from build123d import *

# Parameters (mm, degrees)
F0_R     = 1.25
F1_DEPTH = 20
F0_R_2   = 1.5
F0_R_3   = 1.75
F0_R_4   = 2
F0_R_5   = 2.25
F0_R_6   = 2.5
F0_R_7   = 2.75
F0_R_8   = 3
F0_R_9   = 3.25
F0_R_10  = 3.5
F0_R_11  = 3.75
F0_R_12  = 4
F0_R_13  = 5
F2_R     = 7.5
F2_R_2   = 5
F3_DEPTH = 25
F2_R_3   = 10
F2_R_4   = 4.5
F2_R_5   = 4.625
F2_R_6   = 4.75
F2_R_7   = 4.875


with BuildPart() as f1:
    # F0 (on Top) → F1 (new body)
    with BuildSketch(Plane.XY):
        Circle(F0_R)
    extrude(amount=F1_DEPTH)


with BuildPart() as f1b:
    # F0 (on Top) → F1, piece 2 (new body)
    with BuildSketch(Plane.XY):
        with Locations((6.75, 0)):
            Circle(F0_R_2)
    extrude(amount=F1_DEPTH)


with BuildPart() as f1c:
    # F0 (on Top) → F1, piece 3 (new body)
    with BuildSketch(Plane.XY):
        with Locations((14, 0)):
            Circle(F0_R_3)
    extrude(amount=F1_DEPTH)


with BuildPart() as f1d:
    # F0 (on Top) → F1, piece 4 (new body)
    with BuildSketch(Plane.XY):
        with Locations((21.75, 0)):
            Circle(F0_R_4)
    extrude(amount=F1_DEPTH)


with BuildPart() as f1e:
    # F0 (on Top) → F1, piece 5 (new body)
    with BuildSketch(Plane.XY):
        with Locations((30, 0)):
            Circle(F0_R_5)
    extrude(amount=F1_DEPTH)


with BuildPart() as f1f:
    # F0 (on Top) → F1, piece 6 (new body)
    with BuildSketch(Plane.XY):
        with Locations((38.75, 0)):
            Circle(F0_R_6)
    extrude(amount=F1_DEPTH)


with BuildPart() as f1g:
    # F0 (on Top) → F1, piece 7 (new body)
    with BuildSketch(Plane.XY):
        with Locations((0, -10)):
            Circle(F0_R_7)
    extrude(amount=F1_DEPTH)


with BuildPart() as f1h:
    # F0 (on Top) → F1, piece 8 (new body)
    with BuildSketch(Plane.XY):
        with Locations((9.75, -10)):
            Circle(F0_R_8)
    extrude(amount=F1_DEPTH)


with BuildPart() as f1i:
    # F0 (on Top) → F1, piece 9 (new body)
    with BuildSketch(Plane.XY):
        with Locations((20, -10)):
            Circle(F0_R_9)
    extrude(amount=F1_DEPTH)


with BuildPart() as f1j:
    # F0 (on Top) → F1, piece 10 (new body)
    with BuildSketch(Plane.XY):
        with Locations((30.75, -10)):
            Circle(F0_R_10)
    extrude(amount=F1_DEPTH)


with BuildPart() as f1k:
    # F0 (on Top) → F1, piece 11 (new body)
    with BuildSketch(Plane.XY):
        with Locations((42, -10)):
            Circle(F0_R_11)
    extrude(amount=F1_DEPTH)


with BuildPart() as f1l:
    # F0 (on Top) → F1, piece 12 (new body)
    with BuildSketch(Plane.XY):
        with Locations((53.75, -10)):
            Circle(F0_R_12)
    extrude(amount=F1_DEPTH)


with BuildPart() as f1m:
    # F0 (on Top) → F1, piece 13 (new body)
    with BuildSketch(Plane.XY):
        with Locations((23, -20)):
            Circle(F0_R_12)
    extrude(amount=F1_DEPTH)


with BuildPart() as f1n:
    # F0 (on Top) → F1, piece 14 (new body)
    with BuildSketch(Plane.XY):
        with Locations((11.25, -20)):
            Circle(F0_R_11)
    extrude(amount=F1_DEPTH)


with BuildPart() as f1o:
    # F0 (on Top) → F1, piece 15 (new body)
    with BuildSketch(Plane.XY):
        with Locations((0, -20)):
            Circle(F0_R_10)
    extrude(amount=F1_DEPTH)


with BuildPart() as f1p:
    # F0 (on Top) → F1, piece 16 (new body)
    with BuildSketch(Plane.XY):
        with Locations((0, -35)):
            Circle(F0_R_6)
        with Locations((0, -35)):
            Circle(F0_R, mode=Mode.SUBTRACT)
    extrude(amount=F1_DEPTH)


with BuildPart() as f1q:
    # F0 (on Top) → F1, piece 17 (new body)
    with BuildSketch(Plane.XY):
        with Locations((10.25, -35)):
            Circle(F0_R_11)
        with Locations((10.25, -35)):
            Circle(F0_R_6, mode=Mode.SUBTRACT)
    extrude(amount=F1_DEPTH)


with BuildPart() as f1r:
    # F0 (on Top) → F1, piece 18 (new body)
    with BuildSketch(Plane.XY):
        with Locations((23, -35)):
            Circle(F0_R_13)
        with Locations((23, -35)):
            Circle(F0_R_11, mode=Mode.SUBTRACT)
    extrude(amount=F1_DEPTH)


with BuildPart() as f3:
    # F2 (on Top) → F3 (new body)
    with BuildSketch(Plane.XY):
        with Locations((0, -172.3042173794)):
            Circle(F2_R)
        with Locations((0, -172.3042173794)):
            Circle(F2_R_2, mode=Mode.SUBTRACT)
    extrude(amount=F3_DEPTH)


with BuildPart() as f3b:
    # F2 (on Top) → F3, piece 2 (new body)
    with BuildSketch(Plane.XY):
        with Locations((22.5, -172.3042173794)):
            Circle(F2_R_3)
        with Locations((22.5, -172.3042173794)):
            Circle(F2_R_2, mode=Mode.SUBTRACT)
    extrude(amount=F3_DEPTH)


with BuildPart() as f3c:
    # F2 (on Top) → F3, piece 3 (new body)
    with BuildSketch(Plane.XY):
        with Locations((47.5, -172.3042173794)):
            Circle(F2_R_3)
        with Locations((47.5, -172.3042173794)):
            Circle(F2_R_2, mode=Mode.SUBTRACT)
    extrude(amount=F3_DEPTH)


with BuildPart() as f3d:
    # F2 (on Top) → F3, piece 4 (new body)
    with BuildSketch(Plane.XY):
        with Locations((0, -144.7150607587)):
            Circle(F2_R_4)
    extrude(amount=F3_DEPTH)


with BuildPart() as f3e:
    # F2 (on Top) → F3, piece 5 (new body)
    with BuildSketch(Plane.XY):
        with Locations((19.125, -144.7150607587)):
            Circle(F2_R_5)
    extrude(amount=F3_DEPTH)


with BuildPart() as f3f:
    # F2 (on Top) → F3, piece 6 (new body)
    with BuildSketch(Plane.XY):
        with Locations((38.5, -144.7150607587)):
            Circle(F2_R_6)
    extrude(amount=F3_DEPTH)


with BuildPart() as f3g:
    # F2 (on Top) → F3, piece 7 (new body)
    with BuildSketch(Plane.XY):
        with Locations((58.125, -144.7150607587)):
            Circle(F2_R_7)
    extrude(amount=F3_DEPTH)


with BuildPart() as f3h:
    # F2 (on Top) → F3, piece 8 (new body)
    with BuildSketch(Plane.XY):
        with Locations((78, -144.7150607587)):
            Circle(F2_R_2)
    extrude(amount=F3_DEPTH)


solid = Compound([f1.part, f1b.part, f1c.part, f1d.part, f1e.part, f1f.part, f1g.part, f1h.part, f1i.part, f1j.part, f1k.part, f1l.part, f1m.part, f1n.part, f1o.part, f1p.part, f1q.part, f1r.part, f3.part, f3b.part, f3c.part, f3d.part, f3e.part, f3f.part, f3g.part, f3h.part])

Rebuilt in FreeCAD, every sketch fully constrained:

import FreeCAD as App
import Part
import Sketcher
Q = App.Units.Quantity

doc = App.newDocument("Part")
body = doc.addObject("PartDesign::Body", "Body")

sketch1 = doc.addObject("Sketcher::SketchObject", "Sketch")
body.addObject(sketch1)
sketch1.AttachmentSupport = (doc.XY_Plane, [""])
sketch1.MapMode = "FlatFace"
sketch1.addGeometry(Part.Circle(App.Vector(0, 0, 0), App.Vector(0, 0, 1), 1.2), False)
sketch1.addConstraint([
    Sketcher.Constraint("Coincident", 0, 3, -1, 1),
    Sketcher.Constraint("Diameter", 0, Q("2.5 mm")),
])
pad1 = doc.addObject("PartDesign::Pad", "Pad")
body.addObject(pad1)
pad1.Profile = sketch1
pad1.Length = 20
body2 = doc.addObject("PartDesign::Body", "Body001")

sketch2 = doc.addObject("Sketcher::SketchObject", "Sketch001")
body2.addObject(sketch2)
sketch2.AttachmentSupport = (doc.getObject("XY_Plane001"), [""])
sketch2.MapMode = "FlatFace"
sketch2.addGeometry(Part.Circle(App.Vector(6.8, 0, 0), App.Vector(0, 0, 1), 1.5), False)
sketch2.addConstraint([
    Sketcher.Constraint("PointOnObject", 0, 3, -1),
    Sketcher.Constraint("Diameter", 0, Q("3 mm")),
    Sketcher.Constraint("DistanceX", -1, 1, 0, 3, Q("6.75 mm")),
])
pad2 = doc.addObject("PartDesign::Pad", "Pad001")
body2.addObject(pad2)
pad2.Profile = sketch2
pad2.Length = 20
body3 = doc.addObject("PartDesign::Body", "Body002")

sketch3 = doc.addObject("Sketcher::SketchObject", "Sketch002")
body3.addObject(sketch3)
sketch3.AttachmentSupport = (doc.getObject("XY_Plane002"), [""])
sketch3.MapMode = "FlatFace"
sketch3.addGeometry(Part.Circle(App.Vector(14, 0, 0), App.Vector(0, 0, 1), 1.8), False)
sketch3.addConstraint([
    Sketcher.Constraint("PointOnObject", 0, 3, -1),
    Sketcher.Constraint("Diameter", 0, Q("3.5 mm")),
    Sketcher.Constraint("DistanceX", -1, 1, 0, 3, Q("14 mm")),
])
pad3 = doc.addObject("PartDesign::Pad", "Pad002")
body3.addObject(pad3)
pad3.Profile = sketch3
pad3.Length = 20
body4 = doc.addObject("PartDesign::Body", "Body003")

sketch4 = doc.addObject("Sketcher::SketchObject", "Sketch003")
body4.addObject(sketch4)
sketch4.AttachmentSupport = (doc.getObject("XY_Plane003"), [""])
sketch4.MapMode = "FlatFace"
sketch4.addGeometry(Part.Circle(App.Vector(21.8, 0, 0), App.Vector(0, 0, 1), 2), False)
sketch4.addConstraint([
    Sketcher.Constraint("PointOnObject", 0, 3, -1),
    Sketcher.Constraint("Diameter", 0, Q("4 mm")),
    Sketcher.Constraint("DistanceX", -1, 1, 0, 3, Q("21.75 mm")),
])
pad4 = doc.addObject("PartDesign::Pad", "Pad003")
body4.addObject(pad4)
pad4.Profile = sketch4
pad4.Length = 20
body5 = doc.addObject("PartDesign::Body", "Body004")

sketch5 = doc.addObject("Sketcher::SketchObject", "Sketch004")
body5.addObject(sketch5)
sketch5.AttachmentSupport = (doc.getObject("XY_Plane004"), [""])
sketch5.MapMode = "FlatFace"
sketch5.addGeometry(Part.Circle(App.Vector(30, 0, 0), App.Vector(0, 0, 1), 2.2), False)
sketch5.addConstraint([
    Sketcher.Constraint("PointOnObject", 0, 3, -1),
    Sketcher.Constraint("Diameter", 0, Q("4.5 mm")),
    Sketcher.Constraint("DistanceX", -1, 1, 0, 3, Q("30 mm")),
])
pad5 = doc.addObject("PartDesign::Pad", "Pad004")
body5.addObject(pad5)
pad5.Profile = sketch5
pad5.Length = 20
body6 = doc.addObject("PartDesign::Body", "Body005")

sketch6 = doc.addObject("Sketcher::SketchObject", "Sketch005")
body6.addObject(sketch6)
sketch6.AttachmentSupport = (doc.getObject("XY_Plane005"), [""])
sketch6.MapMode = "FlatFace"
sketch6.addGeometry(Part.Circle(App.Vector(38.8, 0, 0), App.Vector(0, 0, 1), 2.5), False)
sketch6.addConstraint([
    Sketcher.Constraint("PointOnObject", 0, 3, -1),
    Sketcher.Constraint("Diameter", 0, Q("5 mm")),
    Sketcher.Constraint("DistanceX", -1, 1, 0, 3, Q("38.75 mm")),
])
pad6 = doc.addObject("PartDesign::Pad", "Pad005")
body6.addObject(pad6)
pad6.Profile = sketch6
pad6.Length = 20
body7 = doc.addObject("PartDesign::Body", "Body006")

sketch7 = doc.addObject("Sketcher::SketchObject", "Sketch006")
body7.addObject(sketch7)
sketch7.AttachmentSupport = (doc.getObject("XY_Plane006"), [""])
sketch7.MapMode = "FlatFace"
sketch7.addGeometry(Part.Circle(App.Vector(0, -10, 0), App.Vector(0, 0, 1), 2.8), False)
sketch7.addConstraint([
    Sketcher.Constraint("PointOnObject", 0, 3, -2),
    Sketcher.Constraint("Diameter", 0, Q("5.5 mm")),
    Sketcher.Constraint("DistanceY", 0, 3, -1, 1, Q("10 mm")),
])
pad7 = doc.addObject("PartDesign::Pad", "Pad006")
body7.addObject(pad7)
pad7.Profile = sketch7
pad7.Length = 20
body8 = doc.addObject("PartDesign::Body", "Body007")

sketch8 = doc.addObject("Sketcher::SketchObject", "Sketch007")
body8.addObject(sketch8)
sketch8.AttachmentSupport = (doc.getObject("XY_Plane007"), [""])
sketch8.MapMode = "FlatFace"
sketch8.addGeometry(Part.Circle(App.Vector(9.8, -10, 0), App.Vector(0, 0, 1), 3), False)
sketch8.addConstraint([
    Sketcher.Constraint("Diameter", 0, Q("6 mm")),
    Sketcher.Constraint("DistanceY", 0, 3, -1, 1, Q("10 mm")),
    Sketcher.Constraint("DistanceX", -1, 1, 0, 3, Q("9.75 mm")),
])
pad8 = doc.addObject("PartDesign::Pad", "Pad007")
body8.addObject(pad8)
pad8.Profile = sketch8
pad8.Length = 20
body9 = doc.addObject("PartDesign::Body", "Body008")

sketch9 = doc.addObject("Sketcher::SketchObject", "Sketch008")
body9.addObject(sketch9)
sketch9.AttachmentSupport = (doc.getObject("XY_Plane008"), [""])
sketch9.MapMode = "FlatFace"
sketch9.addGeometry(Part.Circle(App.Vector(20, -10, 0), App.Vector(0, 0, 1), 3.2), False)
sketch9.addConstraint([
    Sketcher.Constraint("Diameter", 0, Q("6.5 mm")),
    Sketcher.Constraint("DistanceX", -1, 1, 0, 3, Q("20 mm")),
    Sketcher.Constraint("DistanceY", 0, 3, -1, 1, Q("10 mm")),
])
pad9 = doc.addObject("PartDesign::Pad", "Pad008")
body9.addObject(pad9)
pad9.Profile = sketch9
pad9.Length = 20
body10 = doc.addObject("PartDesign::Body", "Body009")

sketch10 = doc.addObject("Sketcher::SketchObject", "Sketch009")
body10.addObject(sketch10)
sketch10.AttachmentSupport = (doc.getObject("XY_Plane009"), [""])
sketch10.MapMode = "FlatFace"
sketch10.addGeometry(Part.Circle(App.Vector(30.8, -10, 0), App.Vector(0, 0, 1), 3.5), False)
sketch10.addConstraint([
    Sketcher.Constraint("Diameter", 0, Q("7 mm")),
    Sketcher.Constraint("DistanceY", 0, 3, -1, 1, Q("10 mm")),
    Sketcher.Constraint("DistanceX", -1, 1, 0, 3, Q("30.75 mm")),
])
pad10 = doc.addObject("PartDesign::Pad", "Pad009")
body10.addObject(pad10)
pad10.Profile = sketch10
pad10.Length = 20
body11 = doc.addObject("PartDesign::Body", "Body010")

sketch11 = doc.addObject("Sketcher::SketchObject", "Sketch010")
body11.addObject(sketch11)
sketch11.AttachmentSupport = (doc.getObject("XY_Plane010"), [""])
sketch11.MapMode = "FlatFace"
sketch11.addGeometry(Part.Circle(App.Vector(42, -10, 0), App.Vector(0, 0, 1), 3.8), False)
sketch11.addConstraint([
    Sketcher.Constraint("Diameter", 0, Q("7.5 mm")),
    Sketcher.Constraint("DistanceX", -1, 1, 0, 3, Q("42 mm")),
    Sketcher.Constraint("DistanceY", 0, 3, -1, 1, Q("10 mm")),
])
pad11 = doc.addObject("PartDesign::Pad", "Pad010")
body11.addObject(pad11)
pad11.Profile = sketch11
pad11.Length = 20
body12 = doc.addObject("PartDesign::Body", "Body011")

sketch12 = doc.addObject("Sketcher::SketchObject", "Sketch011")
body12.addObject(sketch12)
sketch12.AttachmentSupport = (doc.getObject("XY_Plane011"), [""])
sketch12.MapMode = "FlatFace"
sketch12.addGeometry(Part.Circle(App.Vector(53.8, -10, 0), App.Vector(0, 0, 1), 4), False)
sketch12.addConstraint([
    Sketcher.Constraint("Diameter", 0, Q("8 mm")),
    Sketcher.Constraint("DistanceY", 0, 3, -1, 1, Q("10 mm")),
    Sketcher.Constraint("DistanceX", -1, 1, 0, 3, Q("53.75 mm")),
])
pad12 = doc.addObject("PartDesign::Pad", "Pad011")
body12.addObject(pad12)
pad12.Profile = sketch12
pad12.Length = 20
body13 = doc.addObject("PartDesign::Body", "Body012")

sketch13 = doc.addObject("Sketcher::SketchObject", "Sketch012")
body13.addObject(sketch13)
sketch13.AttachmentSupport = (doc.getObject("XY_Plane012"), [""])
sketch13.MapMode = "FlatFace"
sketch13.addGeometry(Part.Circle(App.Vector(23, -20, 0), App.Vector(0, 0, 1), 4), False)
sketch13.addConstraint([
    Sketcher.Constraint("Diameter", 0, Q("8 mm")),
    Sketcher.Constraint("DistanceX", -1, 1, 0, 3, Q("23 mm")),
    Sketcher.Constraint("DistanceY", 0, 3, -1, 1, Q("20 mm")),
])
pad13 = doc.addObject("PartDesign::Pad", "Pad012")
body13.addObject(pad13)
pad13.Profile = sketch13
pad13.Length = 20
body14 = doc.addObject("PartDesign::Body", "Body013")

sketch14 = doc.addObject("Sketcher::SketchObject", "Sketch013")
body14.addObject(sketch14)
sketch14.AttachmentSupport = (doc.getObject("XY_Plane013"), [""])
sketch14.MapMode = "FlatFace"
sketch14.addGeometry(Part.Circle(App.Vector(11.2, -20, 0), App.Vector(0, 0, 1), 3.8), False)
sketch14.addConstraint([
    Sketcher.Constraint("Diameter", 0, Q("7.5 mm")),
    Sketcher.Constraint("DistanceY", 0, 3, -1, 1, Q("20 mm")),
    Sketcher.Constraint("DistanceX", -1, 1, 0, 3, Q("11.25 mm")),
])
pad14 = doc.addObject("PartDesign::Pad", "Pad013")
body14.addObject(pad14)
pad14.Profile = sketch14
pad14.Length = 20
body15 = doc.addObject("PartDesign::Body", "Body014")

sketch15 = doc.addObject("Sketcher::SketchObject", "Sketch014")
body15.addObject(sketch15)
sketch15.AttachmentSupport = (doc.getObject("XY_Plane014"), [""])
sketch15.MapMode = "FlatFace"
sketch15.addGeometry(Part.Circle(App.Vector(0, -20, 0), App.Vector(0, 0, 1), 3.5), False)
sketch15.addConstraint([
    Sketcher.Constraint("PointOnObject", 0, 3, -2),
    Sketcher.Constraint("Diameter", 0, Q("7 mm")),
    Sketcher.Constraint("DistanceY", 0, 3, -1, 1, Q("20 mm")),
])
pad15 = doc.addObject("PartDesign::Pad", "Pad014")
body15.addObject(pad15)
pad15.Profile = sketch15
pad15.Length = 20
body16 = doc.addObject("PartDesign::Body", "Body015")

sketch16 = doc.addObject("Sketcher::SketchObject", "Sketch015")
body16.addObject(sketch16)
sketch16.AttachmentSupport = (doc.getObject("XY_Plane015"), [""])
sketch16.MapMode = "FlatFace"
sketch16.addGeometry([
    Part.Circle(App.Vector(0, -35, 0), App.Vector(0, 0, 1), 2.5),
    Part.Circle(App.Vector(0, -35, 0), App.Vector(0, 0, 1), 1.2),
], False)
sketch16.addConstraint([
    Sketcher.Constraint("Coincident", 1, 3, 0, 3),
    Sketcher.Constraint("PointOnObject", 0, 3, -2),
    Sketcher.Constraint("Diameter", 0, Q("5 mm")),
    Sketcher.Constraint("Diameter", 1, Q("2.5 mm")),
    Sketcher.Constraint("DistanceY", 0, 3, -1, 1, Q("35 mm")),
])
pad16 = doc.addObject("PartDesign::Pad", "Pad015")
body16.addObject(pad16)
pad16.Profile = sketch16
pad16.Length = 20
body17 = doc.addObject("PartDesign::Body", "Body016")

sketch17 = doc.addObject("Sketcher::SketchObject", "Sketch016")
body17.addObject(sketch17)
sketch17.AttachmentSupport = (doc.getObject("XY_Plane016"), [""])
sketch17.MapMode = "FlatFace"
sketch17.addGeometry([
    Part.Circle(App.Vector(10.2, -35, 0), App.Vector(0, 0, 1), 3.8),
    Part.Circle(App.Vector(10.2, -35, 0), App.Vector(0, 0, 1), 2.5),
], False)
sketch17.addConstraint([
    Sketcher.Constraint("Coincident", 1, 3, 0, 3),
    Sketcher.Constraint("Diameter", 1, Q("5 mm")),
    Sketcher.Constraint("Diameter", 0, Q("7.5 mm")),
    Sketcher.Constraint("DistanceY", 0, 3, -1, 1, Q("35 mm")),
    Sketcher.Constraint("DistanceX", -1, 1, 0, 3, Q("10.25 mm")),
])
pad17 = doc.addObject("PartDesign::Pad", "Pad016")
body17.addObject(pad17)
pad17.Profile = sketch17
pad17.Length = 20
body18 = doc.addObject("PartDesign::Body", "Body017")

sketch18 = doc.addObject("Sketcher::SketchObject", "Sketch017")
body18.addObject(sketch18)
sketch18.AttachmentSupport = (doc.getObject("XY_Plane017"), [""])
sketch18.MapMode = "FlatFace"
sketch18.addGeometry([
    Part.Circle(App.Vector(23, -35, 0), App.Vector(0, 0, 1), 5),
    Part.Circle(App.Vector(23, -35, 0), App.Vector(0, 0, 1), 3.8),
], False)
sketch18.addConstraint([
    Sketcher.Constraint("Coincident", 1, 3, 0, 3),
    Sketcher.Constraint("Diameter", 0, Q("10 mm")),
    Sketcher.Constraint("Diameter", 1, Q("7.5 mm")),
    Sketcher.Constraint("DistanceX", -1, 1, 0, 3, Q("23 mm")),
    Sketcher.Constraint("DistanceY", 0, 3, -1, 1, Q("35 mm")),
])
pad18 = doc.addObject("PartDesign::Pad", "Pad017")
body18.addObject(pad18)
pad18.Profile = sketch18
pad18.Length = 20
body19 = doc.addObject("PartDesign::Body", "Body018")

sketch19 = doc.addObject("Sketcher::SketchObject", "Sketch018")
body19.addObject(sketch19)
sketch19.AttachmentSupport = (doc.getObject("XY_Plane018"), [""])
sketch19.MapMode = "FlatFace"
sketch19.addGeometry([
    Part.Circle(App.Vector(0, -172, 0), App.Vector(0, 0, 1), 8),
    Part.Circle(App.Vector(0, -172, 0), App.Vector(0, 0, 1), 5),
], False)
sketch19.addConstraint([
    Sketcher.Constraint("Coincident", 1, 3, 0, 3),
    Sketcher.Constraint("PointOnObject", 0, 3, -2),
    Sketcher.Constraint("Diameter", 0, Q("15 mm")),
    Sketcher.Constraint("Diameter", 1, Q("10 mm")),
    Sketcher.Constraint("DistanceY", 0, 3, -1, 1, Q("172.304217 mm")),
])
pad19 = doc.addObject("PartDesign::Pad", "Pad018")
body19.addObject(pad19)
pad19.Profile = sketch19
pad19.Length = 25
body20 = doc.addObject("PartDesign::Body", "Body019")

sketch20 = doc.addObject("Sketcher::SketchObject", "Sketch019")
body20.addObject(sketch20)
sketch20.AttachmentSupport = (doc.getObject("XY_Plane019"), [""])
sketch20.MapMode = "FlatFace"
sketch20.addGeometry([
    Part.Circle(App.Vector(22, -172, 0), App.Vector(0, 0, 1), 10),
    Part.Circle(App.Vector(22, -172, 0), App.Vector(0, 0, 1), 5),
], False)
sketch20.addConstraint([
    Sketcher.Constraint("Coincident", 1, 3, 0, 3),
    Sketcher.Constraint("Diameter", 0, Q("20 mm")),
    Sketcher.Constraint("Diameter", 1, Q("10 mm")),
    Sketcher.Constraint("DistanceX", -1, 1, 0, 3, Q("22.5 mm")),
    Sketcher.Constraint("DistanceY", 0, 3, -1, 1, Q("172.304217 mm")),
])
pad20 = doc.addObject("PartDesign::Pad", "Pad019")
body20.addObject(pad20)
pad20.Profile = sketch20
pad20.Length = 25
body21 = doc.addObject("PartDesign::Body", "Body020")

sketch21 = doc.addObject("Sketcher::SketchObject", "Sketch020")
body21.addObject(sketch21)
sketch21.AttachmentSupport = (doc.getObject("XY_Plane020"), [""])
sketch21.MapMode = "FlatFace"
sketch21.addGeometry([
    Part.Circle(App.Vector(48, -172, 0), App.Vector(0, 0, 1), 10),
    Part.Circle(App.Vector(48, -172, 0), App.Vector(0, 0, 1), 5),
], False)
sketch21.addConstraint([
    Sketcher.Constraint("Coincident", 1, 3, 0, 3),
    Sketcher.Constraint("Diameter", 0, Q("20 mm")),
    Sketcher.Constraint("Diameter", 1, Q("10 mm")),
    Sketcher.Constraint("DistanceX", -1, 1, 0, 3, Q("47.5 mm")),
    Sketcher.Constraint("DistanceY", 0, 3, -1, 1, Q("172.304217 mm")),
])
pad21 = doc.addObject("PartDesign::Pad", "Pad020")
body21.addObject(pad21)
pad21.Profile = sketch21
pad21.Length = 25
body22 = doc.addObject("PartDesign::Body", "Body021")

sketch22 = doc.addObject("Sketcher::SketchObject", "Sketch021")
body22.addObject(sketch22)
sketch22.AttachmentSupport = (doc.getObject("XY_Plane021"), [""])
sketch22.MapMode = "FlatFace"
sketch22.addGeometry(Part.Circle(App.Vector(0, -144.7, 0), App.Vector(0, 0, 1), 4.5), False)
sketch22.addConstraint([
    Sketcher.Constraint("PointOnObject", 0, 3, -2),
    Sketcher.Constraint("Diameter", 0, Q("9 mm")),
    Sketcher.Constraint("DistanceY", 0, 3, -1, 1, Q("144.715061 mm")),
])
pad22 = doc.addObject("PartDesign::Pad", "Pad021")
body22.addObject(pad22)
pad22.Profile = sketch22
pad22.Length = 25
body23 = doc.addObject("PartDesign::Body", "Body022")

sketch23 = doc.addObject("Sketcher::SketchObject", "Sketch022")
body23.addObject(sketch23)
sketch23.AttachmentSupport = (doc.getObject("XY_Plane022"), [""])
sketch23.MapMode = "FlatFace"
sketch23.addGeometry(Part.Circle(App.Vector(19.1, -144.7, 0), App.Vector(0, 0, 1), 4.6), False)
sketch23.addConstraint([
    Sketcher.Constraint("Diameter", 0, Q("9.25 mm")),
    Sketcher.Constraint("DistanceX", -1, 1, 0, 3, Q("19.125 mm")),
    Sketcher.Constraint("DistanceY", 0, 3, -1, 1, Q("144.715061 mm")),
])
pad23 = doc.addObject("PartDesign::Pad", "Pad022")
body23.addObject(pad23)
pad23.Profile = sketch23
pad23.Length = 25
body24 = doc.addObject("PartDesign::Body", "Body023")

sketch24 = doc.addObject("Sketcher::SketchObject", "Sketch023")
body24.addObject(sketch24)
sketch24.AttachmentSupport = (doc.getObject("XY_Plane023"), [""])
sketch24.MapMode = "FlatFace"
sketch24.addGeometry(Part.Circle(App.Vector(38.5, -144.7, 0), App.Vector(0, 0, 1), 4.8), False)
sketch24.addConstraint([
    Sketcher.Constraint("Diameter", 0, Q("9.5 mm")),
    Sketcher.Constraint("DistanceX", -1, 1, 0, 3, Q("38.5 mm")),
    Sketcher.Constraint("DistanceY", 0, 3, -1, 1, Q("144.715061 mm")),
])
pad24 = doc.addObject("PartDesign::Pad", "Pad023")
body24.addObject(pad24)
pad24.Profile = sketch24
pad24.Length = 25
body25 = doc.addObject("PartDesign::Body", "Body024")

sketch25 = doc.addObject("Sketcher::SketchObject", "Sketch024")
body25.addObject(sketch25)
sketch25.AttachmentSupport = (doc.getObject("XY_Plane024"), [""])
sketch25.MapMode = "FlatFace"
sketch25.addGeometry(Part.Circle(App.Vector(58.1, -144.7, 0), App.Vector(0, 0, 1), 4.9), False)
sketch25.addConstraint([
    Sketcher.Constraint("Diameter", 0, Q("9.75 mm")),
    Sketcher.Constraint("DistanceX", -1, 1, 0, 3, Q("58.125 mm")),
    Sketcher.Constraint("DistanceY", 0, 3, -1, 1, Q("144.715061 mm")),
])
pad25 = doc.addObject("PartDesign::Pad", "Pad024")
body25.addObject(pad25)
pad25.Profile = sketch25
pad25.Length = 25
body26 = doc.addObject("PartDesign::Body", "Body025")

sketch26 = doc.addObject("Sketcher::SketchObject", "Sketch025")
body26.addObject(sketch26)
sketch26.AttachmentSupport = (doc.getObject("XY_Plane025"), [""])
sketch26.MapMode = "FlatFace"
sketch26.addGeometry(Part.Circle(App.Vector(78, -145, 0), App.Vector(0, 0, 1), 5), False)
sketch26.addConstraint([
    Sketcher.Constraint("Diameter", 0, Q("10 mm")),
    Sketcher.Constraint("DistanceX", -1, 1, 0, 3, Q("78 mm")),
    Sketcher.Constraint("DistanceY", 0, 3, -1, 1, Q("144.715061 mm")),
])
pad26 = doc.addObject("PartDesign::Pad", "Pad025")
body26.addObject(pad26)
pad26.Profile = sketch26
pad26.Length = 25

doc.recompute()
